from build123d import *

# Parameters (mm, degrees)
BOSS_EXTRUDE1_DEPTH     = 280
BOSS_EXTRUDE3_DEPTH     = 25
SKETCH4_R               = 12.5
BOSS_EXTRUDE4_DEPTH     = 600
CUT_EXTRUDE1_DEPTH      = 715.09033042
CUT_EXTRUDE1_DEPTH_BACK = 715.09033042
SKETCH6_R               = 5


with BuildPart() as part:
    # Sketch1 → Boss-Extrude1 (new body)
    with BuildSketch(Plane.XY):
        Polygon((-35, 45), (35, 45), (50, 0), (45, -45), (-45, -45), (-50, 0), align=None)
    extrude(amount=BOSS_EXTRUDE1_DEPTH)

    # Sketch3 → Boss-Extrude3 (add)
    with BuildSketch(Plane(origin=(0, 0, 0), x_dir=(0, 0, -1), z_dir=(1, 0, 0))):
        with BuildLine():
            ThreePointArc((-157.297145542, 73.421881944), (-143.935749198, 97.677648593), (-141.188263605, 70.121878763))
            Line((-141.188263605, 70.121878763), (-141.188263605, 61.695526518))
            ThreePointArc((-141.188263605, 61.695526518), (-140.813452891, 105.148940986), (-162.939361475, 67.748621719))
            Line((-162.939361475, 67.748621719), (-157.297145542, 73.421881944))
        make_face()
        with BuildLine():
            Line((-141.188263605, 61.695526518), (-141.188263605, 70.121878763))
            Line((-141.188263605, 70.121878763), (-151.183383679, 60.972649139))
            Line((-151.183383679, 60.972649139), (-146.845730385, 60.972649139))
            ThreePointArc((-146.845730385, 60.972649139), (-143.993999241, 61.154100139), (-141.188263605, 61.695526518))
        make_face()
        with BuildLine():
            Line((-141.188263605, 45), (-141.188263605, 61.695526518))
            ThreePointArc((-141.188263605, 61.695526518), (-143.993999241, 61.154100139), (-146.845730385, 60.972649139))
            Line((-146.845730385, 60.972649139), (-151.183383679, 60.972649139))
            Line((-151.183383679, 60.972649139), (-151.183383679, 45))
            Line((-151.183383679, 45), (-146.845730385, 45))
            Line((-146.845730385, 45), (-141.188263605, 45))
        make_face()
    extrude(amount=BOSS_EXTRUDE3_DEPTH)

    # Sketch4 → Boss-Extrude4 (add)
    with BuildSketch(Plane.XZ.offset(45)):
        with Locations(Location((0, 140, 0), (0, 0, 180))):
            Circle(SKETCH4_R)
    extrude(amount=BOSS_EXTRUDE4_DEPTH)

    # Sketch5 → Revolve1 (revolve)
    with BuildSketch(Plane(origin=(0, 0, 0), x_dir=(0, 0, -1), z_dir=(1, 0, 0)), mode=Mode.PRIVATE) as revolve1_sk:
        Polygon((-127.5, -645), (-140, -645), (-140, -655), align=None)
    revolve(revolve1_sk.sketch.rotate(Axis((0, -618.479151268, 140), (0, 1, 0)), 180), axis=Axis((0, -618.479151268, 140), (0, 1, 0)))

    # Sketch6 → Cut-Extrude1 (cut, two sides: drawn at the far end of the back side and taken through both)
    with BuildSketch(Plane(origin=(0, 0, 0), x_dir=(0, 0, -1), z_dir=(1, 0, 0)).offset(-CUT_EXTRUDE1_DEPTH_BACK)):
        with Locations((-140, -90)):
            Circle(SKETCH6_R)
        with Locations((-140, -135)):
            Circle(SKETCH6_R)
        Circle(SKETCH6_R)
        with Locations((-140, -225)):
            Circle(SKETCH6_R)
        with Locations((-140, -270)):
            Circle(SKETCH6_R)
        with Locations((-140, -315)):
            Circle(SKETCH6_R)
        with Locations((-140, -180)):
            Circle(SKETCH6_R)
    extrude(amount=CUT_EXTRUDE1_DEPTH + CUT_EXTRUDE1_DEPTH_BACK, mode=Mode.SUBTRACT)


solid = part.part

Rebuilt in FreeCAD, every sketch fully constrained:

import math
import FreeCAD as App
import Part
import Sketcher

V = App.Vector

doc = App.newDocument("Part")
body = doc.addObject("PartDesign::Body", "Body")

sketch1 = doc.addObject("Sketcher::SketchObject", "Sketch")
body.addObject(sketch1)
sketch1.AttachmentSupport = (doc.XY_Plane, [""])
sketch1.MapMode = "FlatFace"
sketch1.addGeometry([
    Part.LineSegment(V(35, 45, 0), V(-35, 45, 0)),
    Part.LineSegment(V(-35, 45, 0), V(-50, 0, 0)),
    Part.LineSegment(V(-50, 0, 0), V(-45, -45, 0)),
    Part.LineSegment(V(-45, -45, 0), V(45, -45, 0)),
    Part.LineSegment(V(45, -45, 0), V(50, 0, 0)),
    Part.LineSegment(V(50, 0, 0), V(35, 45, 0)),
], False)
sketch1.addConstraint([
    Sketcher.Constraint("Coincident", 0, 2, 1, 1),
    Sketcher.Constraint("Coincident", 1, 2, 2, 1),
    Sketcher.Constraint("Coincident", 2, 2, 3, 1),
    Sketcher.Constraint("Coincident", 3, 2, 4, 1),
    Sketcher.Constraint("Coincident", 4, 2, 5, 1),
    Sketcher.Constraint("Coincident", 5, 2, 0, 1),
    Sketcher.Constraint("Horizontal", 0),
    Sketcher.Constraint("Horizontal", 3),
    Sketcher.Constraint("Symmetric", 1, 2, 4, 2, -1, 1),
    Sketcher.Constraint("PointOnObject", 1, 2, -1),
    Sketcher.Constraint("Equal", 2, 4),
    Sketcher.Constraint("Equal", 1, 5),
    Sketcher.Constraint("DistanceX", 0, 2, 0, 1, 70.0),
    Sketcher.Constraint("DistanceX", 3, 1, 3, 2, 90.0),
    Sketcher.Constraint("DistanceY", -1, 1, 0, 2, 45.0),
    Sketcher.Constraint("DistanceX", 1, 2, -1, 1, 50.0),
    Sketcher.Constraint("DistanceY", 2, 2, -1, 1, 45.0),
])
pad1 = doc.addObject("PartDesign::Pad", "Pad")
body.addObject(pad1)
pad1.Profile = sketch1
pad1.Length = 280

sketch2 = doc.addObject("Sketcher::SketchObject", "Sketch001")
body.addObject(sketch2)
sketch2.AttachmentSupport = (doc.YZ_Plane, [""])
sketch2.MapMode = "FlatFace"
sketch2.addGeometry([
    Part.ArcOfCircle(Part.Circle(V(83.472649, 146.84573, 0), V(0, 0, 1), 14.5), math.radians(-157.034915), math.radians(133.880484)),
    Part.LineSegment(V(70.121879, 141.188264, 0), V(60.972649, 151.183384, 0)),
    Part.LineSegment(V(60.972649, 151.183384, 0), V(45, 151.183384, 0)),
    Part.LineSegment(V(45, 151.183384, 0), V(45, 141.188264, 0)),
    Part.LineSegment(V(45, 141.188264, 0), V(61.695527, 141.188264, 0)),
    Part.ArcOfCircle(Part.Circle(V(83.472649, 146.84573, 0), V(0, 0, 1), 22.5), math.radians(-165.437084), math.radians(134.334465)),
    Part.LineSegment(V(67.748622, 162.939361, 0), V(73.421882, 157.297146, 0)),
], False)
sketch2.addConstraint([
    Sketcher.Constraint("Coincident", 0, 1, 1, 1),
    Sketcher.Constraint("Coincident", 1, 2, 2, 1),
    Sketcher.Constraint("Coincident", 2, 2, 3, 1),
    Sketcher.Constraint("Coincident", 3, 2, 4, 1),
    Sketcher.Constraint("Coincident", 4, 2, 5, 1),
    Sketcher.Constraint("Coincident", 5, 2, 6, 1),
    Sketcher.Constraint("Coincident", 6, 2, 0, 2),
    Sketcher.Constraint("Horizontal", 2),
    Sketcher.Constraint("Vertical", 3),
    Sketcher.Constraint("Horizontal", 4),
    Sketcher.Constraint("Coincident", 5, 3, 0, 3),
    Sketcher.Constraint("Horizontal", 0, 1, 3, 2),
    Sketcher.Constraint("Radius", 0, 14.5),
    Sketcher.Constraint("Radius", 5, 22.5),
    Sketcher.Constraint("DistanceX", -1, 1, 2, 2, 45.0),
    Sketcher.Constraint("DistanceX", 1, 2, 0, 3, 22.5),
    Sketcher.Constraint("DistanceX", 2, 2, 2, 1, 15.972649),
    Sketcher.Constraint("DistanceY", 3, 2, 3, 1, 9.99512),
    Sketcher.Constraint("Distance", 6, 8.00128),
    Sketcher.Constraint("DistanceX", 4, 1, 4, 2, 16.695527),
    Sketcher.Constraint("DistanceY", -1, 1, 0, 3, 146.84573),
    Sketcher.Constraint("DistanceX", -1, 1, 5, 2, 67.748622),
])
pad2 = doc.addObject("PartDesign::Pad", "Pad001")
body.addObject(pad2)
pad2.Profile = sketch2
pad2.Length = 25

sketch3 = doc.addObject("Sketcher::SketchObject", "Sketch002")
body.addObject(sketch3)
sketch3.AttachmentSupport = (doc.XZ_Plane, [""])
sketch3.MapMode = "FlatFace"
sketch3.AttachmentOffset = App.Placement(V(0, 0, 45), App.Rotation())
sketch3.addGeometry(Part.Circle(V(0, 140, 0), V(0, 0, 1), 12.5), False)
sketch3.addConstraint([
    Sketcher.Constraint("PointOnObject", 0, 3, -2),
    Sketcher.Constraint("Diameter", 0, 25.0),
    Sketcher.Constraint("DistanceY", -1, 1, 0, 3, 140.0),
])
pad3 = doc.addObject("PartDesign::Pad", "Pad002")
body.addObject(pad3)
pad3.Profile = sketch3
pad3.Length = 600

sketch4 = doc.addObject("Sketcher::SketchObject", "Sketch003")
body.addObject(sketch4)
sketch4.AttachmentSupport = (doc.YZ_Plane, [""])
sketch4.MapMode = "FlatFace"
sketch4.addGeometry([
    Part.LineSegment(V(-645, 127.5, 0), V(-645, 140, 0)),
    Part.LineSegment(V(-645, 140, 0), V(-655, 140, 0)),
    Part.LineSegment(V(-655, 140, 0), V(-645, 127.5, 0)),
], False)
sketch4.addGeometry(Part.LineSegment(V(-655, 140, 0), V(-645, 140, 0)), True)
sketch4.addConstraint([
    Sketcher.Constraint("Coincident", 0, 2, 1, 1),
    Sketcher.Constraint("Coincident", 1, 2, 2, 1),
    Sketcher.Constraint("Coincident", 2, 2, 0, 1),
    Sketcher.Constraint("Vertical", 0),
    Sketcher.Constraint("Horizontal", 1),
    Sketcher.Constraint("Horizontal", 3),
    Sketcher.Constraint("Coincident", 3, 1, 1, 2),
    Sketcher.Constraint("Vertical", 2, 2, 3, 2),
    Sketcher.Constraint("DistanceX", 1, 2, 1, 1, 10.0),
    Sketcher.Constraint("DistanceY", 0, 1, 0, 2, 12.5),
    Sketcher.Constraint("DistanceX", 0, 2, -1, 1, 645.0),
    Sketcher.Constraint("DistanceY", -1, 1, 0, 2, 140.0),
])
revolution = doc.addObject("PartDesign::Revolution", "Revolution")
body.addObject(revolution)
revolution.Profile = sketch4
revolution.ReferenceAxis = (sketch4, ["Axis0"])
revolution.Angle = 360

sketch5 = doc.addObject("Sketcher::SketchObject", "Sketch004")
body.addObject(sketch5)
sketch5.AttachmentSupport = (doc.YZ_Plane, [""])
sketch5.MapMode = "FlatFace"
sketch5.addGeometry([
    Part.Circle(V(-90, 140, 0), V(0, 0, 1), 5),
    Part.Circle(V(-135, 140, 0), V(0, 0, 1), 5),
    Part.Circle(V(0, 0, 0), V(0, 0, 1), 5),
    Part.Circle(V(-225, 140, 0), V(0, 0, 1), 5),
    Part.Circle(V(-270, 140, 0), V(0, 0, 1), 5),
    Part.Circle(V(-315, 140, 0), V(0, 0, 1), 5),
    Part.Circle(V(-180, 140, 0), V(0, 0, 1), 5),
], False)
sketch5.addConstraint([
    Sketcher.Constraint("Coincident", 2, 3, -1, 1),
    Sketcher.Constraint("Equal", 0, 1),
    Sketcher.Constraint("Equal", 1, 2),
    Sketcher.Constraint("Equal", 2, 3),
    Sketcher.Constraint("Equal", 3, 4),
    Sketcher.Constraint("Equal", 4, 5),
    Sketcher.Constraint("Equal", 5, 6),
    Sketcher.Constraint("Horizontal", 0, 3, 1, 3),
    Sketcher.Constraint("Horizontal", 1, 3, 3, 3),
    Sketcher.Constraint("Horizontal", 3, 3, 4, 3),
    Sketcher.Constraint("Horizontal", 4, 3, 5, 3),
    Sketcher.Constraint("Horizontal", 5, 3, 6, 3),
    Sketcher.Constraint("Diameter", 0, 10.0),
    Sketcher.Constraint("DistanceX", 0, 3, -1, 1, 90.0),
    Sketcher.Constraint("DistanceY", -1, 1, 0, 3, 140.0),
    Sketcher.Constraint("DistanceX", 1, 3, -1, 1, 135.0),
    Sketcher.Constraint("DistanceX", 3, 3, -1, 1, 225.0),
    Sketcher.Constraint("DistanceX", 4, 3, -1, 1, 270.0),
    Sketcher.Constraint("DistanceX", 5, 3, -1, 1, 315.0),
    Sketcher.Constraint("DistanceX", 6, 3, -1, 1, 180.0),
])
pocket1 = doc.addObject("PartDesign::Pocket", "Pocket")
body.addObject(pocket1)
pocket1.Profile = sketch5
pocket1.Type = "ThroughAll"
pocket1.Midplane = True

doc.recompute()
